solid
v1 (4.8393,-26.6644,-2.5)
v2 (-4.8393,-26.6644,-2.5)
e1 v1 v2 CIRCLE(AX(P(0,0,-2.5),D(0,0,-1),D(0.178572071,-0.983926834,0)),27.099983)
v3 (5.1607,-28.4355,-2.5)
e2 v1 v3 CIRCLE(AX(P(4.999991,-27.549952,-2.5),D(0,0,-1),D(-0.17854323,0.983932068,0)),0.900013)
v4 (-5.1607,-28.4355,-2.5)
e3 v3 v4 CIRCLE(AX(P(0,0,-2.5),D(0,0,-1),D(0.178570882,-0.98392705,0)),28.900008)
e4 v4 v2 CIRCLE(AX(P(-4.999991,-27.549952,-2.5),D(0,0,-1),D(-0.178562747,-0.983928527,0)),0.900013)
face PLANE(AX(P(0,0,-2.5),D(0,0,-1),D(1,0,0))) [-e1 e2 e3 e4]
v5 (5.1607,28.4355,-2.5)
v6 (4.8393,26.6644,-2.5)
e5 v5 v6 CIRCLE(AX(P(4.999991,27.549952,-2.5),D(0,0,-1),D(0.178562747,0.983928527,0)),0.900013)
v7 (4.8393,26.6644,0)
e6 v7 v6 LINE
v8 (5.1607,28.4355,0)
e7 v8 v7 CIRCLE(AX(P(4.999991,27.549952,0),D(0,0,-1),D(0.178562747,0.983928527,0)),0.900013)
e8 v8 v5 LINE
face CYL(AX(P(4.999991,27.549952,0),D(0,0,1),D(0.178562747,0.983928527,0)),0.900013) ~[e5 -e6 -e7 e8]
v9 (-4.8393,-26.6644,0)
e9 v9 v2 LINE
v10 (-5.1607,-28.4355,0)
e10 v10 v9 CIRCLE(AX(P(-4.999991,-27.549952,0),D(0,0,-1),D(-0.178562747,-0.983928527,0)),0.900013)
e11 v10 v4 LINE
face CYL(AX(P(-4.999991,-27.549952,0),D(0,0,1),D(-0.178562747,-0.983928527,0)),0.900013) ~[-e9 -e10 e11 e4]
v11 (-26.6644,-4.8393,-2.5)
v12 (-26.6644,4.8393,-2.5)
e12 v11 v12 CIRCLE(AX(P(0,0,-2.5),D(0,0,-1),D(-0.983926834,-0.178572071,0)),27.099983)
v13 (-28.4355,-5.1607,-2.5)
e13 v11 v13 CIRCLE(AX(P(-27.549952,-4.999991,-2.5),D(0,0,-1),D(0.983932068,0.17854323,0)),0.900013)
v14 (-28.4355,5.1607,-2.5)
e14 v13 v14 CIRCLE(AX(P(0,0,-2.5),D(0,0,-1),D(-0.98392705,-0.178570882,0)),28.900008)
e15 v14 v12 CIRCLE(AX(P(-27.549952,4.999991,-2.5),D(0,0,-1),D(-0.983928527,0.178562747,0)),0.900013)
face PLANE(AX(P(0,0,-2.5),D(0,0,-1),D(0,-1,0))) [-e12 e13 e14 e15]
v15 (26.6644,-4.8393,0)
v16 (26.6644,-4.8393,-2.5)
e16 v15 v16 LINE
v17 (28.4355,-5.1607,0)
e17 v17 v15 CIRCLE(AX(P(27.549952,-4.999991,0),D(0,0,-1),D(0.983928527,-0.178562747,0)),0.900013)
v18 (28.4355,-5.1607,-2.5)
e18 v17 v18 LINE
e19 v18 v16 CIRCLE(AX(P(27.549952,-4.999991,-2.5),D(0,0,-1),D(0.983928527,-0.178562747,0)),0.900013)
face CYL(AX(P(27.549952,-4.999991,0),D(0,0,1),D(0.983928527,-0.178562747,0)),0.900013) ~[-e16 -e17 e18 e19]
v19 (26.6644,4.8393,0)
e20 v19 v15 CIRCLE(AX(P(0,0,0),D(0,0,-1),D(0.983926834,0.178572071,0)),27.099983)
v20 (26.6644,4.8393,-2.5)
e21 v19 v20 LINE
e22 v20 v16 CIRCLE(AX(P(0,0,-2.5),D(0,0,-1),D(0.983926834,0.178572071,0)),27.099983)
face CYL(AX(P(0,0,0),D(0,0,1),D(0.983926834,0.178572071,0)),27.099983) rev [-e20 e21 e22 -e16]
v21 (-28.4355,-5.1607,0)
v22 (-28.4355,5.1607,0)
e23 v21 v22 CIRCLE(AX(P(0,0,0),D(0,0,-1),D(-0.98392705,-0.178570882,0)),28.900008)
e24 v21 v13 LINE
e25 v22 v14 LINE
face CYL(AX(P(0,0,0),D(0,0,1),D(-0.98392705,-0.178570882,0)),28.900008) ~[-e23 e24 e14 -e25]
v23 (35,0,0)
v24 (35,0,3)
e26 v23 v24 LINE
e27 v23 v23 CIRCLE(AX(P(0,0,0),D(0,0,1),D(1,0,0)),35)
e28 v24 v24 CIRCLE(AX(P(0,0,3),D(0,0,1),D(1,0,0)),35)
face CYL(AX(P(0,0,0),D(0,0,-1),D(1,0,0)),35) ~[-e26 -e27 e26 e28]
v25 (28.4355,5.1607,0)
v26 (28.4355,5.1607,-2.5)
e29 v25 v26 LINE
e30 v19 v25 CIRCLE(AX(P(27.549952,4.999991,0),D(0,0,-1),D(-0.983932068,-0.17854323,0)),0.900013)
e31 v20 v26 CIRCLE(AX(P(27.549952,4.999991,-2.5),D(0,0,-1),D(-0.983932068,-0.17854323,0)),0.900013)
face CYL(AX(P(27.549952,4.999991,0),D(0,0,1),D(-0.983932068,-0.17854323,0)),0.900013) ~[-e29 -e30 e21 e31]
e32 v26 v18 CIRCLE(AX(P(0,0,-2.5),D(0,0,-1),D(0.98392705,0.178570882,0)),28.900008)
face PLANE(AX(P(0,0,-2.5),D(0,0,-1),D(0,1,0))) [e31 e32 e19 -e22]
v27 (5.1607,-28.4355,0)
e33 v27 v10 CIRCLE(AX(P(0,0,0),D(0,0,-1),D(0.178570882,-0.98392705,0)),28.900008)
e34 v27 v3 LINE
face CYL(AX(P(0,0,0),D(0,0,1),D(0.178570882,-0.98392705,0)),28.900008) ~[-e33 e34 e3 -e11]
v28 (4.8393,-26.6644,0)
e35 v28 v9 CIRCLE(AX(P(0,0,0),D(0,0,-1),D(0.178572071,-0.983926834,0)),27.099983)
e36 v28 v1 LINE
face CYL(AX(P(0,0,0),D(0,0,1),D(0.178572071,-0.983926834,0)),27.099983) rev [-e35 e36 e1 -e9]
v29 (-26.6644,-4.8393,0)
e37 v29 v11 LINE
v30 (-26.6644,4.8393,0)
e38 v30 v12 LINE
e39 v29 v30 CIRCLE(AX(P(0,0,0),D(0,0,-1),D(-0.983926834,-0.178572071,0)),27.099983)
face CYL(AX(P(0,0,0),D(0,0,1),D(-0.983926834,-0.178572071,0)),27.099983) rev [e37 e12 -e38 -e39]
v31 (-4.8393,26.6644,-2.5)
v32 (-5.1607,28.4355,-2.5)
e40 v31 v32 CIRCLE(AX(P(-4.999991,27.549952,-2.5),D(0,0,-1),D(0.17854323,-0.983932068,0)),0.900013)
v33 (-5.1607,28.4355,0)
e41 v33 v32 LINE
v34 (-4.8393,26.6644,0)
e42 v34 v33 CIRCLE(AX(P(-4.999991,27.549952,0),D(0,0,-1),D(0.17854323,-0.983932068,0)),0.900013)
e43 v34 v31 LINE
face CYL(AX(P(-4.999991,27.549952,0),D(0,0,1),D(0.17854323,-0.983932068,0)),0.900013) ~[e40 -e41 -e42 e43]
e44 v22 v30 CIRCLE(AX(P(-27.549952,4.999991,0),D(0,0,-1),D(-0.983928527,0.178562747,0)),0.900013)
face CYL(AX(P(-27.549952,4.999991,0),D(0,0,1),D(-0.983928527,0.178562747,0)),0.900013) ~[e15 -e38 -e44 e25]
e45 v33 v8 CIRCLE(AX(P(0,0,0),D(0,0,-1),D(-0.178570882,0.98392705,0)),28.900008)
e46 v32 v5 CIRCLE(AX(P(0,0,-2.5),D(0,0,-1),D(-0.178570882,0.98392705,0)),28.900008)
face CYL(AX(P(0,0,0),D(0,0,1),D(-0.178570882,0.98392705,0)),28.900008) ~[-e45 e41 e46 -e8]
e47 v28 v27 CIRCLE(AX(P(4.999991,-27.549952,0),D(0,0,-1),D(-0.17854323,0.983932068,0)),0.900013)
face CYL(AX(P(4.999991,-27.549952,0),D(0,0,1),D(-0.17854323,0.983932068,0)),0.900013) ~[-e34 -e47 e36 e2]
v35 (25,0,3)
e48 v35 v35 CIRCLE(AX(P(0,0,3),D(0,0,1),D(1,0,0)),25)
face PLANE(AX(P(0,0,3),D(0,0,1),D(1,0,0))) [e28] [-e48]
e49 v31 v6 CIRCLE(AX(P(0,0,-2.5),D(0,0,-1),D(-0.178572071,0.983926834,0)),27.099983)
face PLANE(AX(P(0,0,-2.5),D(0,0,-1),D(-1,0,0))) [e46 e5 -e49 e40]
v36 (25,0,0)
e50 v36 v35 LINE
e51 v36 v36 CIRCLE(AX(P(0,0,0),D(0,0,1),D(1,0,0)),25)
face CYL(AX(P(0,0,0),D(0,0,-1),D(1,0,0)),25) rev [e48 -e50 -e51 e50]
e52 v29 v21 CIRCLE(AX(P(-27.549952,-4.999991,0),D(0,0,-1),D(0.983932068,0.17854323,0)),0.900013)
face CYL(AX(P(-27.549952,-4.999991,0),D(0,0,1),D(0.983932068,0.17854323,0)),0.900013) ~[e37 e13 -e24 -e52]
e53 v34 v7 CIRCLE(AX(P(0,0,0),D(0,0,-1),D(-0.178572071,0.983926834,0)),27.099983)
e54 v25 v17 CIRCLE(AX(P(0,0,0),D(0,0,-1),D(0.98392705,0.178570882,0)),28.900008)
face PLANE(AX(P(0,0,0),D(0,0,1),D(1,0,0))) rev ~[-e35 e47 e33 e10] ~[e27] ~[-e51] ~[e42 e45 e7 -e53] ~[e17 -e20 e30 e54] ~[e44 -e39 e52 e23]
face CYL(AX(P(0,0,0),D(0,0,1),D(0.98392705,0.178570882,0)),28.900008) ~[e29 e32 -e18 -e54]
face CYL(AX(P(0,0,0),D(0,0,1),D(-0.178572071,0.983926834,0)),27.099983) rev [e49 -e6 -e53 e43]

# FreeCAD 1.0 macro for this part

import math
import FreeCAD as App
import Part
import Sketcher
from FreeCAD import Vector

doc = App.newDocument("Part")
body = doc.addObject("PartDesign::Body", "Body")

# Sketch on XY plane
sketch1 = doc.addObject("Sketcher::SketchObject", "Sketch")
body.addObject(sketch1)
sketch1.AttachmentSupport = (doc.XY_Plane, [""])
sketch1.MapMode = "FlatFace"
sketch1.addGeometry(Part.Circle(Vector(0, 0, 0), Vector(0, 0, 1), 35), False)
sketch1.addGeometry(Part.Circle(Vector(0, 0, 0), Vector(0, 0, 1), 25), False)
sketch1.addConstraint(Sketcher.Constraint("Coincident", 0, 3, -1, 1))
sketch1.addConstraint(Sketcher.Constraint("Coincident", 1, 3, -1, 1))
sketch1.addConstraint(Sketcher.Constraint("Diameter", 0, 70.0))
sketch1.addConstraint(Sketcher.Constraint("Diameter", 1, 50.0))
pad1 = doc.addObject("PartDesign::Pad", "Pad")
body.addObject(pad1)
pad1.Profile = sketch1
pad1.Length = 3

# Sketch on XY plane
sketch2 = doc.addObject("Sketcher::SketchObject", "Sketch001")
body.addObject(sketch2)
sketch2.AttachmentSupport = (doc.XY_Plane, [""])
sketch2.MapMode = "FlatFace"
sketch2.addGeometry(Part.ArcOfCircle(Part.Circle(Vector(0, 0, 0), Vector(0, 0, 1), 27.1), math.radians(-100), math.radians(-80)), False)
sketch2.addGeometry(Part.ArcOfCircle(Part.Circle(Vector(5, -27.6, 0), Vector(0, 0, 1), 0.9), math.radians(-80), math.radians(100)), False)
sketch2.addGeometry(Part.ArcOfCircle(Part.Circle(Vector(0, 0, 0), Vector(0, 0, 1), 28.9), math.radians(-100), math.radians(-80)), False)
sketch2.addGeometry(Part.ArcOfCircle(Part.Circle(Vector(-5, -27.6, 0), Vector(0, 0, 1), 0.9), math.radians(80), math.radians(260)), False)
sketch2.addConstraint(Sketcher.Constraint("Tangent", 0, 2, 1, 2))
sketch2.addConstraint(Sketcher.Constraint("Tangent", 1, 1, 2, 2))
sketch2.addConstraint(Sketcher.Constraint("Tangent", 2, 1, 3, 2))
sketch2.addConstraint(Sketcher.Constraint("Tangent", 3, 1, 0, 1))
sketch2.addConstraint(Sketcher.Constraint("Coincident", 0, 3, -1, 1))
sketch2.addConstraint(Sketcher.Constraint("Coincident", 2, 3, -1, 1))
sketch2.addConstraint(Sketcher.Constraint("Horizontal", 1, 3, 3, 3))
sketch2.addConstraint(Sketcher.Constraint("Radius", 1, 0.9))
sketch2.addConstraint(Sketcher.Constraint("DistanceX", 3, 3, 1, 3, 10.0))
sketch2.addConstraint(Sketcher.Constraint("Radius", 0, 27.1))
pad2 = doc.addObject("PartDesign::Pad", "Pad001")
body.addObject(pad2)
pad2.Profile = sketch2
pad2.Length = 2.5
pad2.Reversed = True
doc.recompute()

polarpattern = doc.addObject("PartDesign::PolarPattern", "PolarPattern")
body.addObject(polarpattern)
polarpattern.Originals = [pad2]
polarpattern.Axis = (doc.Z_Axis, [""])
polarpattern.Angle = 360
polarpattern.Occurrences = 4
body.Tip = polarpattern

doc.recompute()
